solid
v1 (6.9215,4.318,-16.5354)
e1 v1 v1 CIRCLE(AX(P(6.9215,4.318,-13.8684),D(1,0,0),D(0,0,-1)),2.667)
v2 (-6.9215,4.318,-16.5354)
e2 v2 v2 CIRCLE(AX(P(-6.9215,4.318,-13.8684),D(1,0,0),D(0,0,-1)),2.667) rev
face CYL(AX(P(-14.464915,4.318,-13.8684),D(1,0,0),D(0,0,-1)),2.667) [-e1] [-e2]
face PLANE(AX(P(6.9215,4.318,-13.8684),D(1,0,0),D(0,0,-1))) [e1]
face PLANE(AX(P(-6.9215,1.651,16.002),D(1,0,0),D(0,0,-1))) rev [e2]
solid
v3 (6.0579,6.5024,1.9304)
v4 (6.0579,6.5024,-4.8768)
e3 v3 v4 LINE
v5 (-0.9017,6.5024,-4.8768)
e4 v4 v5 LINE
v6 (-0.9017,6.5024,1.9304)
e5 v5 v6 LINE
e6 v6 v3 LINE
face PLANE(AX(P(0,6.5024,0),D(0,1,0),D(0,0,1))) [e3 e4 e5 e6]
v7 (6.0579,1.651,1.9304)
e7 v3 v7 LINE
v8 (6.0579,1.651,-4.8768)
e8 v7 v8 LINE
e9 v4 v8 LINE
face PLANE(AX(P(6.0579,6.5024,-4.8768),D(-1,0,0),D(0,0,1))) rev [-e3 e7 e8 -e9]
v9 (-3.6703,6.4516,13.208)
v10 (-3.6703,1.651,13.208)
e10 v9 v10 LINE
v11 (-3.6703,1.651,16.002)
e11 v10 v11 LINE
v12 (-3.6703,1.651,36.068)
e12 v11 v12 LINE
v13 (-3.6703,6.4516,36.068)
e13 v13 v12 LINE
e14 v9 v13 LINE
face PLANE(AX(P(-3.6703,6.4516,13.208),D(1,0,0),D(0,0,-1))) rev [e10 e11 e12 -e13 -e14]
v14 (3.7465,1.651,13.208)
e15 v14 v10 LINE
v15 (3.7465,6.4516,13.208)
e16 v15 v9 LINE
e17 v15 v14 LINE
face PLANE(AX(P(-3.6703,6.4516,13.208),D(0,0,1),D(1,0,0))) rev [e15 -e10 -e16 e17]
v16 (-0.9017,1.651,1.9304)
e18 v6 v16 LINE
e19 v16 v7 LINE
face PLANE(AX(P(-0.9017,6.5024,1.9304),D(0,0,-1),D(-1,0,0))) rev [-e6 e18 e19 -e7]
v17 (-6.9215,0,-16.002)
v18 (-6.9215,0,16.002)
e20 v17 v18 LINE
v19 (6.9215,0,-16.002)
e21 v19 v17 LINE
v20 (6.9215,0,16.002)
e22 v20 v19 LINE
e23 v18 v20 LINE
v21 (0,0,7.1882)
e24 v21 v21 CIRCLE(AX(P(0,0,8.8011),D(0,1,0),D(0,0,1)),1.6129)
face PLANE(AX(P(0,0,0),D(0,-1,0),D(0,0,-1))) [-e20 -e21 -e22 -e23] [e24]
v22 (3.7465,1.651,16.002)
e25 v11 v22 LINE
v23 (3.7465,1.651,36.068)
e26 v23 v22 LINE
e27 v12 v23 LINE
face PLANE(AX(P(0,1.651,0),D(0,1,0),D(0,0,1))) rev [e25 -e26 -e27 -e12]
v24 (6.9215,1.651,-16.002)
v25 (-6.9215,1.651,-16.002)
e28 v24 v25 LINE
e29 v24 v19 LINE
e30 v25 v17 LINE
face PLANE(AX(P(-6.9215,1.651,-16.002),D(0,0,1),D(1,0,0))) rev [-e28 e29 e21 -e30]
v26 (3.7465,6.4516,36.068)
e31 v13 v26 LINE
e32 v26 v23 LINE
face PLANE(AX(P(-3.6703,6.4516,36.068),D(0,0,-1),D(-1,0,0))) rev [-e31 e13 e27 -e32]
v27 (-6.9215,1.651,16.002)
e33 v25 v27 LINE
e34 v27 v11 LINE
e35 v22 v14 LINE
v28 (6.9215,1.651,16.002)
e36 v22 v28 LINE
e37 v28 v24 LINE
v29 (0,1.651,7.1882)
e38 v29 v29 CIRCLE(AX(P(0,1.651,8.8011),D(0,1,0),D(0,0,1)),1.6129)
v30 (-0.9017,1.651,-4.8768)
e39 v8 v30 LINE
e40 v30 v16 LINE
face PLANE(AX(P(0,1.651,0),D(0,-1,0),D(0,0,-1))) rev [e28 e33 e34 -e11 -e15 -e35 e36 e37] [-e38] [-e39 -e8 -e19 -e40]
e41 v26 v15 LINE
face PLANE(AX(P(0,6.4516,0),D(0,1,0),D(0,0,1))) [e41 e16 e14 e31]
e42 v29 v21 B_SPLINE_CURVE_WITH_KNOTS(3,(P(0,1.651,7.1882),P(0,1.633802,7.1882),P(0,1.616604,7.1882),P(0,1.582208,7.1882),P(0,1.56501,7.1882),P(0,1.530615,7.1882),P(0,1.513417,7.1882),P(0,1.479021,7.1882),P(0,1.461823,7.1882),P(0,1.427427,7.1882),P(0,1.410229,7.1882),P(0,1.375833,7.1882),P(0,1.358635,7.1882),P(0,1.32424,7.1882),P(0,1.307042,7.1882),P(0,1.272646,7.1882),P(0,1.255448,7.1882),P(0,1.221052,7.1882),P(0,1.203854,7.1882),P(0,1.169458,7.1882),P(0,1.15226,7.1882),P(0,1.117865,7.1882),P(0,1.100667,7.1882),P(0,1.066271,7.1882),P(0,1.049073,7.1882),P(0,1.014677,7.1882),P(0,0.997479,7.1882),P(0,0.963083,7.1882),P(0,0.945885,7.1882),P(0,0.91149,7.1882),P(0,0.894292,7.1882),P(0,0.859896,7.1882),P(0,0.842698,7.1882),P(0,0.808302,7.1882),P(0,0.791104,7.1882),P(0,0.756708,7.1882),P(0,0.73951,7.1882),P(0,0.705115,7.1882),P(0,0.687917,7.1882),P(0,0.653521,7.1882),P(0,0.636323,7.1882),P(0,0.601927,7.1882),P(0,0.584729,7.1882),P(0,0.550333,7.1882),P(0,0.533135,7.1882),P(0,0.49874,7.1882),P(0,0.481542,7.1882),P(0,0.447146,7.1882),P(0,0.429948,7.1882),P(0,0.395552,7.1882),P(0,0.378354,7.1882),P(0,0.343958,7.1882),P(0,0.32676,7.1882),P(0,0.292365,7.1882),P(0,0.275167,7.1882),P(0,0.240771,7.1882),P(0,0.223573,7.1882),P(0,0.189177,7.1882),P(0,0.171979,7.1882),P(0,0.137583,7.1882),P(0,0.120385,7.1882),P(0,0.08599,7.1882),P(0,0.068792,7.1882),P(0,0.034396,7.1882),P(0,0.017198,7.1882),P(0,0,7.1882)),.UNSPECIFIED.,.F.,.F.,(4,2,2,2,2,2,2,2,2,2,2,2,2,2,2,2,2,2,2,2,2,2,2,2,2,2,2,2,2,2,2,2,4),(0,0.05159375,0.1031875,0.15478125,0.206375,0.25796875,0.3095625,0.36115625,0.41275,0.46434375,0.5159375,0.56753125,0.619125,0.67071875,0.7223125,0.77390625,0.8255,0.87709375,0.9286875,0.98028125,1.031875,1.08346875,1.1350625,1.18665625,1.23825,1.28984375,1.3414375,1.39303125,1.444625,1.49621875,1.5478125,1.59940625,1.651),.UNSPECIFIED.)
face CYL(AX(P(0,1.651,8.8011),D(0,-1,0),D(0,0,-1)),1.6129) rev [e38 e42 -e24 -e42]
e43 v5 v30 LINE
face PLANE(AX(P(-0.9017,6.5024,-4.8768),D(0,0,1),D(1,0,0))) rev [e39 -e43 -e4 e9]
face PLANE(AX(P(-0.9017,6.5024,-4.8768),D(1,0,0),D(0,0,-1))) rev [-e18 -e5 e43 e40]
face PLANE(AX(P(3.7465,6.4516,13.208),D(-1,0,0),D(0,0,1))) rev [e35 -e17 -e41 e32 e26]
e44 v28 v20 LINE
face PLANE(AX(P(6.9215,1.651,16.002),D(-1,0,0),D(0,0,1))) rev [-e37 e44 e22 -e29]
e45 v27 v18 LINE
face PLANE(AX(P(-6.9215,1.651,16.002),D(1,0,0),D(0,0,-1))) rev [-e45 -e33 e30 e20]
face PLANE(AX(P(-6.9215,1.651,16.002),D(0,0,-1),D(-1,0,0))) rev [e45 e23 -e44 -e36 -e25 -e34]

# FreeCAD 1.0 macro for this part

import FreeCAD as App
import Part
import Sketcher
from FreeCAD import Vector
Q = App.Units.Quantity


def add_polygon(sketch, points):
    """Adds a closed chain of lines whose ends are joined by coincident constraints."""
    first, n = sketch.GeometryCount, len(points)
    for a, b in zip(points, points[1:] + points[:1]):
        sketch.addGeometry(Part.LineSegment(App.Vector(*a, 0), App.Vector(*b, 0)), False)
    for i in range(n):
        sketch.addConstraint(Sketcher.Constraint("Coincident", first + i, 2, first + (i + 1) % n, 1))

doc = App.newDocument("Part")
params = doc.addObject("Spreadsheet::Sheet", "Params")
for row, (alias, value) in enumerate([
    ("sketch1_diameter", "0.127 in"),
    ("sketch1_height", "1.26 in"),
    ("sketch1_width", "0.545 in"),
    ("pad1_length", "0.065 in"),
    ("sketch2_width", "0.274 in"),
    ("sketch2_height", "0.268 in"),
    ("pad2_length", "0.191 in"),
    ("sketch3_height", "0.9 in"),
    ("sketch3_width", "0.292 in"),
    ("pad3_length", "0.189 in"),
    ("sketch4_diameter", "0.21 in"),
    ("pad4_length", "0.545 in"),
], start=1):
    params.set(f"A{row}", alias)
    params.set(f"B{row}", "=" + value)
    params.setAlias(f"B{row}", alias)

body = doc.addObject("PartDesign::Body", "Body")

# Sketch on XZ plane
sketch1 = body.newObject("Sketcher::SketchObject", "Sketch")
sketch1.AttachmentSupport = (doc.getObject("XZ_Plane"), [""])
sketch1.MapMode = "FlatFace"
add_polygon(sketch1, [(-6.9215, -16.002), (-6.9215, 16.002), (6.9215, 16.002), (6.9215, -16.002)])  # lines 0-3
sketch1.addGeometry(Part.Circle(Vector(0, 8.8011, 0), Vector(0, 0, 1), 1.6129), False)  # 4
sketch1.addConstraint([
    Sketcher.Constraint("Vertical", 0),
    Sketcher.Constraint("Horizontal", 1),
    Sketcher.Constraint("Vertical", 2),
    Sketcher.Constraint("Horizontal", 3),
    Sketcher.Constraint("Symmetric", 0, 2, 2, 2, -1, 1),
    Sketcher.Constraint("PointOnObject", 4, 3, -2),
    Sketcher.Constraint("Diameter", 4, Q("0.127 in")),
    Sketcher.Constraint("DistanceY", 0, 1, 0, 2, Q("1.26 in")),
    Sketcher.Constraint("DistanceX", 1, 1, 1, 2, Q("0.545 in")),
    Sketcher.Constraint("DistanceY", -1, 1, 4, 3, Q("0.3465 in")),
])
sketch1.setExpression("Constraints[10]", "Params.sketch1_diameter")
sketch1.setExpression("Constraints[11]", "Params.sketch1_height")
sketch1.setExpression("Constraints[12]", "Params.sketch1_width")
pad1 = body.newObject("PartDesign::Pad", "Pad")
pad1.Profile = sketch1
pad1.setExpression("Length", "Params.pad1_length")
pad1.Reversed = True

# Sketch on XZ plane
sketch2 = body.newObject("Sketcher::SketchObject", "Sketch001")
sketch2.AttachmentSupport = (doc.getObject("XZ_Plane"), [""])
sketch2.MapMode = "FlatFace"
sketch2.AttachmentOffset = App.Placement(Vector(0, 0, -0.065 * 25.4), App.Rotation())
add_polygon(sketch2, [(-0.9017, -4.8768), (-0.9017, 1.9304), (6.0579, 1.9304), (6.0579, -4.8768)])  # lines 0-3
sketch2.addConstraint([
    Sketcher.Constraint("Vertical", 0),
    Sketcher.Constraint("Horizontal", 1),
    Sketcher.Constraint("Vertical", 2),
    Sketcher.Constraint("Horizontal", 3),
    Sketcher.Constraint("DistanceX", 1, 1, 1, 2, Q("0.274 in")),
    Sketcher.Constraint("DistanceY", 0, 1, 0, 2, Q("0.268 in")),
    Sketcher.Constraint("DistanceY", -1, 1, 0, 2, Q("0.076 in")),
    Sketcher.Constraint("DistanceX", 0, 2, -1, 1, Q("0.0355 in")),
])
sketch2.setExpression("Constraints[8]", "Params.sketch2_width")
sketch2.setExpression("Constraints[9]", "Params.sketch2_height")
pad2 = body.newObject("PartDesign::Pad", "Pad001")
pad2.Profile = sketch2
pad2.setExpression("Length", "Params.pad2_length")
pad2.Reversed = True

# Sketch on XZ plane
sketch3 = body.newObject("Sketcher::SketchObject", "Sketch002")
sketch3.AttachmentSupport = (doc.getObject("XZ_Plane"), [""])
sketch3.MapMode = "FlatFace"
sketch3.AttachmentOffset = App.Placement(Vector(0, 0, -0.065 * 25.4), App.Rotation())
add_polygon(sketch3, [(-3.6703, 13.208), (-3.6703, 36.068), (3.7465, 36.068), (3.7465, 13.208)])  # lines 0-3
sketch3.addConstraint([
    Sketcher.Constraint("Vertical", 0),
    Sketcher.Constraint("Horizontal", 1),
    Sketcher.Constraint("Vertical", 2),
    Sketcher.Constraint("Horizontal", 3),
    Sketcher.Constraint("DistanceY", 0, 1, 0, 2, Q("0.9 in")),
    Sketcher.Constraint("DistanceX", 1, 1, 1, 2, Q("0.292 in")),
    Sketcher.Constraint("DistanceY", -1, 1, 0, 2, Q("1.42 in")),
    Sketcher.Constraint("DistanceX", 0, 2, -1, 1, Q("0.1445 in")),
])
sketch3.setExpression("Constraints[8]", "Params.sketch3_height")
sketch3.setExpression("Constraints[9]", "Params.sketch3_width")
pad3 = body.newObject("PartDesign::Pad", "Pad002")
pad3.Profile = sketch3
pad3.setExpression("Length", "Params.pad3_length")
pad3.Reversed = True
body2 = doc.addObject("PartDesign::Body", "Body001")

# Sketch on YZ plane
sketch4 = body2.newObject("Sketcher::SketchObject", "Sketch003")
sketch4.AttachmentSupport = (doc.getObject("YZ_Plane001"), [""])
sketch4.MapMode = "FlatFace"
sketch4.AttachmentOffset = App.Placement(Vector(0, 0, 0.2725 * 25.4), App.Rotation())
sketch4.addGeometry(Part.Circle(Vector(4.318, -13.8684, 0), Vector(0, 0, 1), 2.667), False)
sketch4.addConstraint([
    Sketcher.Constraint("Diameter", 0, Q("0.21 in")),
    Sketcher.Constraint("DistanceX", -1, 1, 0, 3, Q("0.17 in")),
    Sketcher.Constraint("DistanceY", 0, 3, -1, 1, Q("0.546 in")),
])
sketch4.setExpression("Constraints[0]", "Params.sketch4_diameter")
pad4 = body2.newObject("PartDesign::Pad", "Pad003")
pad4.Profile = sketch4
pad4.setExpression("Length", "Params.pad4_length")
pad4.Reversed = True

doc.recompute()
